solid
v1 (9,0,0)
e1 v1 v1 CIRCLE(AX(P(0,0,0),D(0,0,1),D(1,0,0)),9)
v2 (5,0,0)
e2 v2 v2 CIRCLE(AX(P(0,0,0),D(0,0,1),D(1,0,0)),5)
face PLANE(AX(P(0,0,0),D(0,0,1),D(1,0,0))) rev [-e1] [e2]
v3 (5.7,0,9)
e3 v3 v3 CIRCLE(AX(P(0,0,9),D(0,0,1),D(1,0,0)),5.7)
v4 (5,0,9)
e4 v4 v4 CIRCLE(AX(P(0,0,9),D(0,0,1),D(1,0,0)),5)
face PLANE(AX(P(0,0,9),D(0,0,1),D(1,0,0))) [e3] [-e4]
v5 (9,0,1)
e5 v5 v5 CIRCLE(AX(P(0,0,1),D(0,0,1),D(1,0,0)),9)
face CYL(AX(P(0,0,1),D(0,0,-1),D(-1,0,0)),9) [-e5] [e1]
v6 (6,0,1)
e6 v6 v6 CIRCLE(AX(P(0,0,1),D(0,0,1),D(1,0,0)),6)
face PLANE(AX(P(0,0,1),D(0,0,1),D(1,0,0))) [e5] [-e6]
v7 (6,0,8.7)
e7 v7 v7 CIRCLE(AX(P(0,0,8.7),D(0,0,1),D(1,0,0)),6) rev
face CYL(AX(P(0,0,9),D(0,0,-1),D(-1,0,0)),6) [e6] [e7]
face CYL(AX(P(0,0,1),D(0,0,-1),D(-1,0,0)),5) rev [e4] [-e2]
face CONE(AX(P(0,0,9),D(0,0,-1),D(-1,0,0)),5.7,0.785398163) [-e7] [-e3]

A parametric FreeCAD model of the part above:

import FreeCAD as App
import Part
import Sketcher
from FreeCAD import Vector


def edges_at(feature, points):
    """Names of the edges that pass closest to the given points."""
    edges = feature.Shape.Edges
    near = lambda p: min(range(len(edges)), key=lambda i: edges[i].distToShape(Part.Vertex(*p))[0])
    return sorted({f"Edge{near(p) + 1}" for p in points})

doc = App.newDocument("Part")
params = doc.addObject("Spreadsheet::Sheet", "Params")
for row, (alias, value) in enumerate([
    ("sketch1_diameter", "18 mm"),
    ("sketch1_diameter2", "10 mm"),
    ("pad1_length", "1 mm"),
    ("sketch2_diameter", "12 mm"),
    ("sketch2_diameter2", "10 mm"),
    ("pad2_length", "8 mm"),
    ("chamfer_size", "0.3 mm"),
], start=1):
    params.set(f"A{row}", alias)
    params.set(f"B{row}", "=" + value)
    params.setAlias(f"B{row}", alias)

body = doc.addObject("PartDesign::Body", "Body")

# Sketch on XY plane
sketch1 = body.newObject("Sketcher::SketchObject", "Sketch")
sketch1.AttachmentSupport = (doc.getObject("XY_Plane"), [""])
sketch1.MapMode = "FlatFace"
sketch1.addGeometry([
    Part.Circle(Vector(0, 0, 0), Vector(0, 0, 1), 9),
    Part.Circle(Vector(0, 0, 0), Vector(0, 0, 1), 5),
], False)
sketch1.addConstraint([
    Sketcher.Constraint("Coincident", 0, 3, -1, 1),
    Sketcher.Constraint("Coincident", 1, 3, -1, 1),
    Sketcher.Constraint("Diameter", 0, 18.0),
    Sketcher.Constraint("Diameter", 1, 10.0),
])
sketch1.setExpression("Constraints[2]", "Params.sketch1_diameter")
sketch1.setExpression("Constraints[3]", "Params.sketch1_diameter2")
pad1 = body.newObject("PartDesign::Pad", "Pad")
pad1.Profile = sketch1
pad1.setExpression("Length", "Params.pad1_length")

# Sketch on XY plane
sketch2 = body.newObject("Sketcher::SketchObject", "Sketch001")
sketch2.AttachmentSupport = (doc.getObject("XY_Plane"), [""])
sketch2.MapMode = "FlatFace"
sketch2.AttachmentOffset = App.Placement(Vector(0, 0, 1), App.Rotation())
sketch2.addGeometry([
    Part.Circle(Vector(0, 0, 0), Vector(0, 0, 1), 6),
    Part.Circle(Vector(0, 0, 0), Vector(0, 0, 1), 5),
], False)
sketch2.addConstraint([
    Sketcher.Constraint("Coincident", 0, 3, -1, 1),
    Sketcher.Constraint("Coincident", 1, 3, -1, 1),
    Sketcher.Constraint("Diameter", 0, 12.0),
    Sketcher.Constraint("Diameter", 1, 10.0),
])
sketch2.setExpression("Constraints[2]", "Params.sketch2_diameter")
sketch2.setExpression("Constraints[3]", "Params.sketch2_diameter2")
pad2 = body.newObject("PartDesign::Pad", "Pad001")
pad2.Profile = sketch2
pad2.setExpression("Length", "Params.pad2_length")
doc.recompute()

chamfer = body.newObject("PartDesign::Chamfer", "Chamfer")
chamfer.Base = (pad2, edges_at(pad2, [(-6, 0, 9)]))
chamfer.setExpression("Size", "Params.chamfer_size")

doc.recompute()
